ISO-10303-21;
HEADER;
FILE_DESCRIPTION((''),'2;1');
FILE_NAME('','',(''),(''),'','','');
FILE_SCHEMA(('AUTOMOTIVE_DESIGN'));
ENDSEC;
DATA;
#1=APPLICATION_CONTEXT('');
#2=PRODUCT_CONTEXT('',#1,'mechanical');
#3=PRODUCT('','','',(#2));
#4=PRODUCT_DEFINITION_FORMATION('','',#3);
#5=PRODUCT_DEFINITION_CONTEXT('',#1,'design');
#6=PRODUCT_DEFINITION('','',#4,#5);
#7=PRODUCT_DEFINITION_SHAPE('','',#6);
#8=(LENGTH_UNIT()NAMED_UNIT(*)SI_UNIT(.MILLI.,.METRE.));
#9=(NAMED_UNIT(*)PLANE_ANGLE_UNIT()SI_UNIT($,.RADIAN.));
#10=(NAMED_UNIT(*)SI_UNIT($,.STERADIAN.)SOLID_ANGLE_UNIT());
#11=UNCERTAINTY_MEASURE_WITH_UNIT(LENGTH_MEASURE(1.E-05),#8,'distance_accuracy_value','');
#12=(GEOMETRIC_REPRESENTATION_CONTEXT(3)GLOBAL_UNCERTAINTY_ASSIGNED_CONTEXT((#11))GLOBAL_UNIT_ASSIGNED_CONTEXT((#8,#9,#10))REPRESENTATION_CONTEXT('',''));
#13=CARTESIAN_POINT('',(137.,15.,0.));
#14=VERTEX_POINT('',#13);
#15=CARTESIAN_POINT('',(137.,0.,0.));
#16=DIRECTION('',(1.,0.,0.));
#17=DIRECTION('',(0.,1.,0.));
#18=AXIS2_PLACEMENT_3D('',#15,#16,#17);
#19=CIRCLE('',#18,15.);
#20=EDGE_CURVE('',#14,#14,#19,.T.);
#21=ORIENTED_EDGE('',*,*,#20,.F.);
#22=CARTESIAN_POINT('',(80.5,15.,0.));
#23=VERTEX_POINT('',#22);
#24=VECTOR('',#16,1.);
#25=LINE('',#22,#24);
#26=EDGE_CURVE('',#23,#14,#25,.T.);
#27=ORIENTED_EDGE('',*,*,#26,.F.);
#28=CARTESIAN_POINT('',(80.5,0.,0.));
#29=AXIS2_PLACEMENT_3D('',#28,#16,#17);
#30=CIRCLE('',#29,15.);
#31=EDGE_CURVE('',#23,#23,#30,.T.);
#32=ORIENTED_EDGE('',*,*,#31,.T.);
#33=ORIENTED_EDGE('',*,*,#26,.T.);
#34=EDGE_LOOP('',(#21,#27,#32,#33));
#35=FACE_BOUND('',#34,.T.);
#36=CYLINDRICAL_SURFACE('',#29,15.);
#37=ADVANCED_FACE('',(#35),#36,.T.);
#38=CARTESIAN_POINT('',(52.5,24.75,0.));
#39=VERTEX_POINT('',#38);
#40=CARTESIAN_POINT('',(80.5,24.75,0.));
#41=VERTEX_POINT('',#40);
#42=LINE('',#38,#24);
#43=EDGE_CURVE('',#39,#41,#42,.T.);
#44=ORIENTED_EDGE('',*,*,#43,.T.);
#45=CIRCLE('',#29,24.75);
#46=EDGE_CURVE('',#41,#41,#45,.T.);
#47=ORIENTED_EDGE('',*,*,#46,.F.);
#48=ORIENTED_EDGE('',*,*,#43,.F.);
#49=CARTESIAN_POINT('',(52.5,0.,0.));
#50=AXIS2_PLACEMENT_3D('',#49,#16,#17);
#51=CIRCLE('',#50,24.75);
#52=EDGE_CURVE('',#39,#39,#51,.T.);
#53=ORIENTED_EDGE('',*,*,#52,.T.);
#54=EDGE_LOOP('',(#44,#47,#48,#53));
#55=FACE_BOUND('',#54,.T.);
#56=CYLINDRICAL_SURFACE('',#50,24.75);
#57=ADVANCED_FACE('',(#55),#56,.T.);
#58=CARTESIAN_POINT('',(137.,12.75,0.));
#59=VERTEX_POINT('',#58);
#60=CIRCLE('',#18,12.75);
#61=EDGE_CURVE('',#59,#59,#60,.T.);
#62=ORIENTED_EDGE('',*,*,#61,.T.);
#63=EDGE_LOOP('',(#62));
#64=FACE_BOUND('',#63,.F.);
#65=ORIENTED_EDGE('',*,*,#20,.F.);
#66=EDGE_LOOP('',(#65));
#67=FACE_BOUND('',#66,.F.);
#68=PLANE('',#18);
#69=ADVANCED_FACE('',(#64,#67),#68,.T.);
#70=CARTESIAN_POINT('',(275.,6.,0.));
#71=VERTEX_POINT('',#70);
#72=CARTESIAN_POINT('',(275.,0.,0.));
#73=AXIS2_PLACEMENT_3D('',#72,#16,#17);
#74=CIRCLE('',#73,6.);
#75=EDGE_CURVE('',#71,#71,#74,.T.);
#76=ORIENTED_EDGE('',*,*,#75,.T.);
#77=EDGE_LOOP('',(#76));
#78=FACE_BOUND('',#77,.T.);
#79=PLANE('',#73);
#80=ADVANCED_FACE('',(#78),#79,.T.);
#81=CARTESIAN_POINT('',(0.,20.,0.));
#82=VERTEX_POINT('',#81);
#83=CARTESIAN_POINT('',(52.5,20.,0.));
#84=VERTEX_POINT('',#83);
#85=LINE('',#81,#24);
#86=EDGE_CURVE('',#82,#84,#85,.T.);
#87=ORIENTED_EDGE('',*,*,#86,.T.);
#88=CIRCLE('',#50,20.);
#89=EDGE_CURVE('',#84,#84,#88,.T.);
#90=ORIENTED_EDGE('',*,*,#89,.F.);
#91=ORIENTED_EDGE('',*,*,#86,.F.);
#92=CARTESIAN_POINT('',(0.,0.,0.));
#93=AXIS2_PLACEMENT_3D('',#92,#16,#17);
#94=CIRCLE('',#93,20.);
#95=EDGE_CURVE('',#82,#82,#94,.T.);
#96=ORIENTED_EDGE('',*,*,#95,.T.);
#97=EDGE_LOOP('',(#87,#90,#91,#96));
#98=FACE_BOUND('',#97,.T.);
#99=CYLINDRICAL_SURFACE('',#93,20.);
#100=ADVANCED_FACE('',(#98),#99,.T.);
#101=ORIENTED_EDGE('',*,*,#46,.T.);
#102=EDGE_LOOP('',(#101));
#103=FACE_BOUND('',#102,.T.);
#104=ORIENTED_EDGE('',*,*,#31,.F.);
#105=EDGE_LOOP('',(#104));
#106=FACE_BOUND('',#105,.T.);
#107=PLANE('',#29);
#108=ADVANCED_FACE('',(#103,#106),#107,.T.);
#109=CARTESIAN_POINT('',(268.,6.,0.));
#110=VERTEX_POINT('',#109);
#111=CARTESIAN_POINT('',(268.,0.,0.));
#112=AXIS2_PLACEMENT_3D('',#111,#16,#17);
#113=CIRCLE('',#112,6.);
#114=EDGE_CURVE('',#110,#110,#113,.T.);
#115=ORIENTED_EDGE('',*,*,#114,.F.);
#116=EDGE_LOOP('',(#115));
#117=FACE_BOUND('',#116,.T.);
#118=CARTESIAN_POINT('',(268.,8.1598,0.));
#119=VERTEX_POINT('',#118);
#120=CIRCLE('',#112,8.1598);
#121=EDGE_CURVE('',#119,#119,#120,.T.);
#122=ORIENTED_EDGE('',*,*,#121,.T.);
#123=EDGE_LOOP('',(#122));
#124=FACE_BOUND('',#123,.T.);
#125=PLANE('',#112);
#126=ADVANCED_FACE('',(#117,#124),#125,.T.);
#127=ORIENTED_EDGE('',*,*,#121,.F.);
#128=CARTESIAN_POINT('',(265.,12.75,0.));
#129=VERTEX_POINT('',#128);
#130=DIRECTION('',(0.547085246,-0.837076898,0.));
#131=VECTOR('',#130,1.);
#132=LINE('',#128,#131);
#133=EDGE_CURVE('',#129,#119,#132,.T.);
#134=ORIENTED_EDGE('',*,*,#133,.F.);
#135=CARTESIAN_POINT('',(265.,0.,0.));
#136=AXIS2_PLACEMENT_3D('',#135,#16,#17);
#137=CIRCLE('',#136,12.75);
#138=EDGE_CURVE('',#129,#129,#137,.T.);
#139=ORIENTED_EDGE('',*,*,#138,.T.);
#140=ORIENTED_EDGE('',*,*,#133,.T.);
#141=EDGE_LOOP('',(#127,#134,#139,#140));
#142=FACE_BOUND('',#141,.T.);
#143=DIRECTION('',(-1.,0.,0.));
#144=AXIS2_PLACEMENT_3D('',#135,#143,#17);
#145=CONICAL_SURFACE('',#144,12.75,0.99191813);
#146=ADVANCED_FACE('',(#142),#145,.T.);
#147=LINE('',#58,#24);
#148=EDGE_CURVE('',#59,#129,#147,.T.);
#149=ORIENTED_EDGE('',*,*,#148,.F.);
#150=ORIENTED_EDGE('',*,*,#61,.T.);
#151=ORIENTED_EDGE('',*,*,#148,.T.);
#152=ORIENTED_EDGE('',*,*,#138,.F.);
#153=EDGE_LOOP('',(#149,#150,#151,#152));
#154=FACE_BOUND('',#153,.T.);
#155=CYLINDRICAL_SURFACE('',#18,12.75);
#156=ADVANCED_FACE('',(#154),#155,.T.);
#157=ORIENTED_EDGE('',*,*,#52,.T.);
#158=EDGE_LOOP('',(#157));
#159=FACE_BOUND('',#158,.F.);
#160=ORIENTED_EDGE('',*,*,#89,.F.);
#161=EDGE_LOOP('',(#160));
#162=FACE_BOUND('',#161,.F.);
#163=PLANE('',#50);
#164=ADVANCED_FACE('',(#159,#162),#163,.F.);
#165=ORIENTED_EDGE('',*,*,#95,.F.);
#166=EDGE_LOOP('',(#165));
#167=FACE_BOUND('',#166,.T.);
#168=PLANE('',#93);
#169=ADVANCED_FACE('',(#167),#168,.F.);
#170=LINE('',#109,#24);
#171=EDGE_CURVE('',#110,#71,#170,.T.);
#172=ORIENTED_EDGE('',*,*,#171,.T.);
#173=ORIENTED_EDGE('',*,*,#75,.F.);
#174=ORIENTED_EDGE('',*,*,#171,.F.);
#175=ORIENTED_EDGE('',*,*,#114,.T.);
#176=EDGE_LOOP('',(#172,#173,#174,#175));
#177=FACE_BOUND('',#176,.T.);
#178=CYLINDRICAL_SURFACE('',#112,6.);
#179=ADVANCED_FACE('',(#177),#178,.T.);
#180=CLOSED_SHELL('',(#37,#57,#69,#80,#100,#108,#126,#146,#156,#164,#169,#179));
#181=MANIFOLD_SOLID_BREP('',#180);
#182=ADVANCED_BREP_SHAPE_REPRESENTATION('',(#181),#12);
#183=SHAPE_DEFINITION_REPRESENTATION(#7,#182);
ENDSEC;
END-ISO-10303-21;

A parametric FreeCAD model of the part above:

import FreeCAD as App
import Part
import Sketcher


def add_polygon(sketch, points):
    """Adds a closed chain of lines whose ends are joined by coincident constraints."""
    first, n = sketch.GeometryCount, len(points)
    for a, b in zip(points, points[1:] + points[:1]):
        sketch.addGeometry(Part.LineSegment(App.Vector(*a, 0), App.Vector(*b, 0)), False)
    for i in range(n):
        sketch.addConstraint(Sketcher.Constraint("Coincident", first + i, 2, first + (i + 1) % n, 1))

doc = App.newDocument("Part")
body = doc.addObject("PartDesign::Body", "Body")

sketch1 = doc.addObject("Sketcher::SketchObject", "Sketch")
body.addObject(sketch1)
sketch1.AttachmentSupport = (doc.XY_Plane, [""])
sketch1.MapMode = "FlatFace"
add_polygon(sketch1, [(0, 20), (0, 0), (275, 0), (275, 6), (268, 6), (268, 8.2), (265, 12.8), (137, 12.8), (137, 15), (80.5, 15), (80.5, 24.8), (52.5, 24.8), (52.5, 20)])
sketch1.addConstraint(Sketcher.Constraint("Vertical", 0))
sketch1.addConstraint(Sketcher.Constraint("Horizontal", 1))
sketch1.addConstraint(Sketcher.Constraint("Vertical", 2))
sketch1.addConstraint(Sketcher.Constraint("Horizontal", 3))
sketch1.addConstraint(Sketcher.Constraint("Vertical", 4))
sketch1.addConstraint(Sketcher.Constraint("Horizontal", 6))
sketch1.addConstraint(Sketcher.Constraint("Vertical", 7))
sketch1.addConstraint(Sketcher.Constraint("Horizontal", 8))
sketch1.addConstraint(Sketcher.Constraint("Vertical", 9))
sketch1.addConstraint(Sketcher.Constraint("Horizontal", 10))
sketch1.addConstraint(Sketcher.Constraint("Vertical", 11))
sketch1.addConstraint(Sketcher.Constraint("Horizontal", 12))
sketch1.addConstraint(Sketcher.Constraint("Coincident", 0, 2, -1, 1))
sketch1.addConstraint(Sketcher.Constraint("DistanceX", 3, 2, 3, 1, 7.0))
sketch1.addConstraint(Sketcher.Constraint("DistanceX", 6, 2, 6, 1, 128.0))
sketch1.addConstraint(Sketcher.Constraint("DistanceX", 10, 2, 10, 1, 28.0))
sketch1.addConstraint(Sketcher.Constraint("DistanceY", 0, 2, 0, 1, 20.0))
sketch1.addConstraint(Sketcher.Constraint("DistanceX", 8, 2, 8, 1, 56.5))
sketch1.addConstraint(Sketcher.Constraint("DistanceX", 12, 2, 12, 1, 52.5))
sketch1.addConstraint(Sketcher.Constraint("DistanceX", 6, 2, 4, 2, 131.0))
sketch1.addConstraint(Sketcher.Constraint("DistanceY", 3, 2, 7, 2, 9.0))
sketch1.addConstraint(Sketcher.Constraint("DistanceY", 6, 2, 9, 2, 12.0))
sketch1.addConstraint(Sketcher.Constraint("DistanceY", 2, 1, 2, 2, 6.0))
sketch1.addConstraint(Sketcher.Constraint("DistanceY", 3, 2, 5, 2, 6.75))
sketch1.addConstraint(Sketcher.Constraint("DistanceY", 4, 1, 4, 2, 2.1598))
revolution = doc.addObject("PartDesign::Revolution", "Revolution")
body.addObject(revolution)
revolution.Profile = sketch1
revolution.ReferenceAxis = (sketch1, ["H_Axis"])
revolution.Angle = 360

doc.recompute()
